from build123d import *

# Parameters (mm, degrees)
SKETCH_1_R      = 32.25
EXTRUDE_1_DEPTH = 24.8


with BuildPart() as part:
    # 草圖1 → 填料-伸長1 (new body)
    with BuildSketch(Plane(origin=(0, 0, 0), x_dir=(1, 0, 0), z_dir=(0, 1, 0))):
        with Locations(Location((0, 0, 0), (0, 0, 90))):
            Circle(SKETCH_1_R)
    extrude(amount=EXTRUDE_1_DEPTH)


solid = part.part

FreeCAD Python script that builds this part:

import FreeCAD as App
import Part
import Sketcher

V = App.Vector
Q = App.Units.Quantity

doc = App.newDocument("Part")
body = doc.addObject("PartDesign::Body", "Body")

# Sketch on XZ plane
sketch1 = body.newObject("Sketcher::SketchObject", "Sketch")
sketch1.AttachmentSupport = (doc.getObject("XZ_Plane"), [""])
sketch1.MapMode = "FlatFace"
sketch1.addGeometry(Part.Circle(V(0, 0, 0), V(0, 0, 1), 32.25), False)
sketch1.addConstraint([
    Sketcher.Constraint("Coincident", 0, 3, -1, 1),
    Sketcher.Constraint("Diameter", 0, Q("64.5 mm")),
])
pad1 = body.newObject("PartDesign::Pad", "Pad")
pad1.Profile = sketch1
pad1.Length = 24.8
pad1.Reversed = True

doc.recompute()
